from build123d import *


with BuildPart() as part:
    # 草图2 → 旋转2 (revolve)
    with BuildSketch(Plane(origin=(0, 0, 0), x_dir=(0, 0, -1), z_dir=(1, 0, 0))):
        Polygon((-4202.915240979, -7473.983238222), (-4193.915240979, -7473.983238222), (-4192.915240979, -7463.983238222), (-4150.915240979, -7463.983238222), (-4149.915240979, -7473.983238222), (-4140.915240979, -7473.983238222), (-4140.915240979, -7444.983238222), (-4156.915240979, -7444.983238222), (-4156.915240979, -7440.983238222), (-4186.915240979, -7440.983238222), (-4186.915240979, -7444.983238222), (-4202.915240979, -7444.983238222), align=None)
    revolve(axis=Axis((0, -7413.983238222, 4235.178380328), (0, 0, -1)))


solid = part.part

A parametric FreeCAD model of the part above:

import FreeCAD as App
import Part
import Sketcher

doc = App.newDocument("Part")
body = doc.addObject("PartDesign::Body", "Body")

sketch1 = body.newObject("Sketcher::SketchObject", "Sketch")
sketch1.AttachmentSupport = (doc.getObject("YZ_Plane"), [""])
sketch1.MapMode = "FlatFace"
sketch1.addGeometry(Part.LineSegment(App.Vector(-7474, 4202.9, 0), App.Vector(-7474, 4193.9, 0)), False)
sketch1.addGeometry(Part.LineSegment(App.Vector(-7474, 4193.9, 0), App.Vector(-7464, 4192.9, 0)), False)
sketch1.addGeometry(Part.LineSegment(App.Vector(-7464, 4192.9, 0), App.Vector(-7464, 4150.9, 0)), False)
sketch1.addGeometry(Part.LineSegment(App.Vector(-7464, 4150.9, 0), App.Vector(-7474, 4149.9, 0)), False)
sketch1.addGeometry(Part.LineSegment(App.Vector(-7474, 4149.9, 0), App.Vector(-7474, 4140.9, 0)), False)
sketch1.addGeometry(Part.LineSegment(App.Vector(-7474, 4140.9, 0), App.Vector(-7445, 4140.9, 0)), False)
sketch1.addGeometry(Part.LineSegment(App.Vector(-7445, 4140.9, 0), App.Vector(-7445, 4156.9, 0)), False)
sketch1.addGeometry(Part.LineSegment(App.Vector(-7445, 4156.9, 0), App.Vector(-7441, 4156.9, 0)), False)
sketch1.addGeometry(Part.LineSegment(App.Vector(-7441, 4156.9, 0), App.Vector(-7441, 4186.9, 0)), False)
sketch1.addGeometry(Part.LineSegment(App.Vector(-7441, 4186.9, 0), App.Vector(-7445, 4186.9, 0)), False)
sketch1.addGeometry(Part.LineSegment(App.Vector(-7445, 4186.9, 0), App.Vector(-7445, 4202.9, 0)), False)
sketch1.addGeometry(Part.LineSegment(App.Vector(-7445, 4202.9, 0), App.Vector(-7474, 4202.9, 0)), False)
sketch1.addGeometry(Part.LineSegment(App.Vector(-7414, 4202.9, 0), App.Vector(-7414, 4140.9, 0)), True)
sketch1.addConstraint(Sketcher.Constraint("Coincident", 0, 2, 1, 1))
sketch1.addConstraint(Sketcher.Constraint("Coincident", 1, 2, 2, 1))
sketch1.addConstraint(Sketcher.Constraint("Coincident", 2, 2, 3, 1))
sketch1.addConstraint(Sketcher.Constraint("Coincident", 3, 2, 4, 1))
sketch1.addConstraint(Sketcher.Constraint("Coincident", 4, 2, 5, 1))
sketch1.addConstraint(Sketcher.Constraint("Coincident", 5, 2, 6, 1))
sketch1.addConstraint(Sketcher.Constraint("Coincident", 6, 2, 7, 1))
sketch1.addConstraint(Sketcher.Constraint("Coincident", 7, 2, 8, 1))
sketch1.addConstraint(Sketcher.Constraint("Coincident", 8, 2, 9, 1))
sketch1.addConstraint(Sketcher.Constraint("Coincident", 9, 2, 10, 1))
sketch1.addConstraint(Sketcher.Constraint("Coincident", 10, 2, 11, 1))
sketch1.addConstraint(Sketcher.Constraint("Coincident", 11, 2, 0, 1))
sketch1.addConstraint(Sketcher.Constraint("Vertical", 0))
sketch1.addConstraint(Sketcher.Constraint("Vertical", 2))
sketch1.addConstraint(Sketcher.Constraint("Vertical", 4))
sketch1.addConstraint(Sketcher.Constraint("Horizontal", 5))
sketch1.addConstraint(Sketcher.Constraint("Vertical", 6))
sketch1.addConstraint(Sketcher.Constraint("Horizontal", 7))
sketch1.addConstraint(Sketcher.Constraint("Vertical", 8))
sketch1.addConstraint(Sketcher.Constraint("Horizontal", 9))
sketch1.addConstraint(Sketcher.Constraint("Vertical", 10))
sketch1.addConstraint(Sketcher.Constraint("Horizontal", 11))
sketch1.addConstraint(Sketcher.Constraint("Vertical", 12))
sketch1.addConstraint(Sketcher.Constraint("Horizontal", 11, 2, 12, 1))
sketch1.addConstraint(Sketcher.Constraint("Horizontal", 5, 2, 12, 2))
sketch1.addConstraint(Sketcher.Constraint("Vertical", 0, 2, 3, 2))
sketch1.addConstraint(Sketcher.Constraint("Vertical", 6, 2, 9, 2))
sketch1.addConstraint(Sketcher.Constraint("Equal", 0, 4))
sketch1.addConstraint(Sketcher.Constraint("Equal", 6, 10))
sketch1.addConstraint(Sketcher.Constraint("Equal", 1, 3))
sketch1.addConstraint(Sketcher.Constraint("DistanceX", 5, 1, 5, 2, 29.0))
sketch1.addConstraint(Sketcher.Constraint("DistanceX", 7, 1, 7, 2, 4.0))
sketch1.addConstraint(Sketcher.Constraint("DistanceY", 0, 2, 0, 1, 9.0))
sketch1.addConstraint(Sketcher.Constraint("DistanceY", 2, 2, 2, 1, 42.0))
sketch1.addConstraint(Sketcher.Constraint("DistanceY", 6, 1, 6, 2, 16.0))
sketch1.addConstraint(Sketcher.Constraint("DistanceY", 8, 1, 8, 2, 30.0))
sketch1.addConstraint(Sketcher.Constraint("DistanceX", 0, 2, 1, 2, 10.0))
sketch1.addConstraint(Sketcher.Constraint("DistanceX", 10, 2, 12, 1, 31.0))
sketch1.addConstraint(Sketcher.Constraint("DistanceX", 0, 2, -1, 1, 7473.983238))
sketch1.addConstraint(Sketcher.Constraint("DistanceY", -1, 1, 0, 2, 4193.915241))
revolution = body.newObject("PartDesign::Revolution", "Revolution")
revolution.Profile = sketch1
revolution.ReferenceAxis = (sketch1, ["Axis0"])
revolution.Angle = 360

doc.recompute()
